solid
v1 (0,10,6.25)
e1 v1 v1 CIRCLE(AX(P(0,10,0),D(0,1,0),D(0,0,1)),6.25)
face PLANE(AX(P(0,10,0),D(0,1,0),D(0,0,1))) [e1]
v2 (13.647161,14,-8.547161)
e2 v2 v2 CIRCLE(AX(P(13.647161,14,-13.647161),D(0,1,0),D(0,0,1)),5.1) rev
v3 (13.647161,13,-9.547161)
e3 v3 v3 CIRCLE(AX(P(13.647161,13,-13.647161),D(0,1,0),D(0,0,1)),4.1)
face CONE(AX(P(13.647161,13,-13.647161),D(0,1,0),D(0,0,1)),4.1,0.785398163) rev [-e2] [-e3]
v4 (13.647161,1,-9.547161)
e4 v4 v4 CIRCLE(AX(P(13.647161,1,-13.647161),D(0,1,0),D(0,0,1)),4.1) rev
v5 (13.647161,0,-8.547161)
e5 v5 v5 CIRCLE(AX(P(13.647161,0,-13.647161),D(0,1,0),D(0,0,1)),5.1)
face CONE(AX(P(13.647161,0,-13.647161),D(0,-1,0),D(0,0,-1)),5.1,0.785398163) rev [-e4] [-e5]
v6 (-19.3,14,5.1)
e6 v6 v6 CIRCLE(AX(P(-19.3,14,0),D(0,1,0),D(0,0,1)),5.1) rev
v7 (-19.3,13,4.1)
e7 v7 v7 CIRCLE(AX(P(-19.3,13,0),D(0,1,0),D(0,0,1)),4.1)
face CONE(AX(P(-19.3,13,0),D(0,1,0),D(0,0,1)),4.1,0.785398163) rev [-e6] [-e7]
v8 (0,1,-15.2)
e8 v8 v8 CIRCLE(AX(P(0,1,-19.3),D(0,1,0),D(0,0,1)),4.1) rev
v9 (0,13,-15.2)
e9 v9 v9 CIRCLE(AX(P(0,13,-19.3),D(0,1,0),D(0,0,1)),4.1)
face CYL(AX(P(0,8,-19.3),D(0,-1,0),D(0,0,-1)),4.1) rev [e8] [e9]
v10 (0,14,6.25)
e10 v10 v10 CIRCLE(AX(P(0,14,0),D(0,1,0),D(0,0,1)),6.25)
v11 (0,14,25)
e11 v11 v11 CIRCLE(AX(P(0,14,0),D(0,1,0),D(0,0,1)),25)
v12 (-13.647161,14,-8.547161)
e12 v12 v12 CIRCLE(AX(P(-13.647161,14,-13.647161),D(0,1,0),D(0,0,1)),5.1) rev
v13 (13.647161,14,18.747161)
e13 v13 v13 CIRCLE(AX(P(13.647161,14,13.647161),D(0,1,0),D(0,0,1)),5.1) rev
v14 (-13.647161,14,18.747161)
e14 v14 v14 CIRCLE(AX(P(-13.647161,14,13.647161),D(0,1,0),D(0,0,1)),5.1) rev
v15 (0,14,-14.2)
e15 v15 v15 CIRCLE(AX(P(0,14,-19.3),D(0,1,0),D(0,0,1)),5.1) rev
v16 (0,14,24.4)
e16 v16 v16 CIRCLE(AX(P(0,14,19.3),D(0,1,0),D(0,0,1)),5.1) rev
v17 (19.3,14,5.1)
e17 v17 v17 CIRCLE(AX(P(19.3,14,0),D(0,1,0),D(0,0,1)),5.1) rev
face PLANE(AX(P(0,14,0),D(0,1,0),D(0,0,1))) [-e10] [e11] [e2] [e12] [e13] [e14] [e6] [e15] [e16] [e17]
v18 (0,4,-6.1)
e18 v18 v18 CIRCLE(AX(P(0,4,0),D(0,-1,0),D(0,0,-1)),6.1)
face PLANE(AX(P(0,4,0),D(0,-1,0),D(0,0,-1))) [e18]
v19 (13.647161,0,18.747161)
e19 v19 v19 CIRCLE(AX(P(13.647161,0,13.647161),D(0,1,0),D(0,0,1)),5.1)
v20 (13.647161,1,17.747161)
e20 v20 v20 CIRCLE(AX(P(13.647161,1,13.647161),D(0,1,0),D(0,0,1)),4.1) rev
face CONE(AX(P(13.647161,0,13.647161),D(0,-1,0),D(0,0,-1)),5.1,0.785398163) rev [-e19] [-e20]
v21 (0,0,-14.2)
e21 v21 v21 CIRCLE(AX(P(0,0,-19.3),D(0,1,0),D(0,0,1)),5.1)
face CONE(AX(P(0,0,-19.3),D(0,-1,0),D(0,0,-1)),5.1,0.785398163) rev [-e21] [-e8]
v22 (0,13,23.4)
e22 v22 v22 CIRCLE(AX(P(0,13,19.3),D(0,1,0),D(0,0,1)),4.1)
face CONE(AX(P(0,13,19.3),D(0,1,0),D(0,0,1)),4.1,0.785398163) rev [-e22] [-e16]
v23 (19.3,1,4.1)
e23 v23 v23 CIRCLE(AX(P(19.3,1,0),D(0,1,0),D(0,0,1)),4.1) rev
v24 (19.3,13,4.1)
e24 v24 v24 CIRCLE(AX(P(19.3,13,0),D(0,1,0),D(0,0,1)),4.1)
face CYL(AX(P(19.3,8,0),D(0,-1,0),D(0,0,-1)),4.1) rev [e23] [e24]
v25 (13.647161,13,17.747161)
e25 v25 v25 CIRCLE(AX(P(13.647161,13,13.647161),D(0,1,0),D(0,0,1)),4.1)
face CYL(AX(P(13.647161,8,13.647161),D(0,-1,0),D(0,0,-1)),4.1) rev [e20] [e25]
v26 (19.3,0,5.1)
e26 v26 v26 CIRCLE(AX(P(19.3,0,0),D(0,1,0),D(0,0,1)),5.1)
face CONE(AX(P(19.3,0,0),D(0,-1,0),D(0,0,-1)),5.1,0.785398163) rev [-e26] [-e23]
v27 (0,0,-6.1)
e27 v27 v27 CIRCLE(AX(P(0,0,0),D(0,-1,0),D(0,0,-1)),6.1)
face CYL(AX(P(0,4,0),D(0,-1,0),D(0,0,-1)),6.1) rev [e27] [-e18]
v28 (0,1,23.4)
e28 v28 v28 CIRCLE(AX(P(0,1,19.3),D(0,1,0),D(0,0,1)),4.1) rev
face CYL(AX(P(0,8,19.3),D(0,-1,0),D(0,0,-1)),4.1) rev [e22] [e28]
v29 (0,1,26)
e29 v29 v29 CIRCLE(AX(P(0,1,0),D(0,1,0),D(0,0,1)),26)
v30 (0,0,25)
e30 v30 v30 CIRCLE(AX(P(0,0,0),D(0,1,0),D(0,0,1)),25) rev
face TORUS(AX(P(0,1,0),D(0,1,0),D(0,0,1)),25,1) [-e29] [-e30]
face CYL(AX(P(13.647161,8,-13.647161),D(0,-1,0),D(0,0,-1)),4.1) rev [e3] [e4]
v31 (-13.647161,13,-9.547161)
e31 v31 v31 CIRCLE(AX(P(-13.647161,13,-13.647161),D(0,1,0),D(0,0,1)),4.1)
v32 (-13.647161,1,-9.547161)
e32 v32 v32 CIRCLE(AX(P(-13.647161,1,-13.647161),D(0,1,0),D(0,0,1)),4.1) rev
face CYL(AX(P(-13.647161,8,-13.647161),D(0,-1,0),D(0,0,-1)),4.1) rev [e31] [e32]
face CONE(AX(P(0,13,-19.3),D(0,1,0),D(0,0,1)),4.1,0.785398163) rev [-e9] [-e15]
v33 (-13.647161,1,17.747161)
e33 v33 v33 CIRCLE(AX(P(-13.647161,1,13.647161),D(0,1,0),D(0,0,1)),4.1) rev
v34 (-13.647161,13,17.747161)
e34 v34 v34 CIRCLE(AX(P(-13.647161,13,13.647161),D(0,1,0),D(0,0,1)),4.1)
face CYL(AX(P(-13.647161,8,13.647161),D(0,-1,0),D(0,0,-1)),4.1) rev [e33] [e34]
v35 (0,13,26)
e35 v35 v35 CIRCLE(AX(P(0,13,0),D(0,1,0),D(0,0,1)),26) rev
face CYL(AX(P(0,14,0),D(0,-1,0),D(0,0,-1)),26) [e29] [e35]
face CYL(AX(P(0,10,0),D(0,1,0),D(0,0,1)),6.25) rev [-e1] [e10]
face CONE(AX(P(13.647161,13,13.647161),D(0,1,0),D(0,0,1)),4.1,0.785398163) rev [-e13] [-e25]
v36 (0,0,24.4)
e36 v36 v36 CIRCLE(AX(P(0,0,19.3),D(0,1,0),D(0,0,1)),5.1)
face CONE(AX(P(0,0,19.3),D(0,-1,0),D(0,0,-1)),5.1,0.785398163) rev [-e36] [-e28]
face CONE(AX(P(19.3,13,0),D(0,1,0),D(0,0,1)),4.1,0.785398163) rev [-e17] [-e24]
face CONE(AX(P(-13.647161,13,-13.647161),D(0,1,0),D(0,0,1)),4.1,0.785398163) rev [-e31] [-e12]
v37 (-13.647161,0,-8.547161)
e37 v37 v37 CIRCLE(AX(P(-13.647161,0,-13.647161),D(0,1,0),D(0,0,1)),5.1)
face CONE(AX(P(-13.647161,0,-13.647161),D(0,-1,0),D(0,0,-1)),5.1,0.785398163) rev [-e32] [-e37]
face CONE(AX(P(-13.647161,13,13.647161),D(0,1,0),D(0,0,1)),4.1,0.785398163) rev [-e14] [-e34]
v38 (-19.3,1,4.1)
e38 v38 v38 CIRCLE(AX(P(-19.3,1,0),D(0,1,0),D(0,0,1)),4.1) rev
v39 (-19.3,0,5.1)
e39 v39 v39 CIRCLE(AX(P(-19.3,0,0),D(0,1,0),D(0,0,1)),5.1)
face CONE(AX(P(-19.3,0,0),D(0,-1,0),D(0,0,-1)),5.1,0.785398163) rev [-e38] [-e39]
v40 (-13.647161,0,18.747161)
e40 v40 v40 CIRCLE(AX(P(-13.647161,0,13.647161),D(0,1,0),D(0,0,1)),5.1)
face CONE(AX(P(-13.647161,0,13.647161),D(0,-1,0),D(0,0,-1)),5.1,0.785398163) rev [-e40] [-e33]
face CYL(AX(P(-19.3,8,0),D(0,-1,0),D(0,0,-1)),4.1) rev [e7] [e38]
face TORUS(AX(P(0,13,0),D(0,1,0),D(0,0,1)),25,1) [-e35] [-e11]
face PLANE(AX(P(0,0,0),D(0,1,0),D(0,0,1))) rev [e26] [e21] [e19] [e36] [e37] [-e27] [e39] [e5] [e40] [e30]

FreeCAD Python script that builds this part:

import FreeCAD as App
import Part
import Sketcher
from FreeCAD import Vector
Q = App.Units.Quantity


def edges_at(feature, points):
    """Names of the edges that pass closest to the given points."""
    edges = feature.Shape.Edges
    near = lambda p: min(range(len(edges)), key=lambda i: edges[i].distToShape(Part.Vertex(*p))[0])
    return sorted({f"Edge{near(p) + 1}" for p in points})

doc = App.newDocument("Part")
body = doc.addObject("PartDesign::Body", "Body")

# Sketch on XZ plane
sketch1 = doc.addObject("Sketcher::SketchObject", "Sketch")
body.addObject(sketch1)
sketch1.AttachmentSupport = (doc.XZ_Plane, [""])
sketch1.MapMode = "FlatFace"
sketch1.addGeometry(Part.Circle(Vector(0, 0, 0), Vector(0, 0, 1), 26), False)
sketch1.addConstraint([
    Sketcher.Constraint("Coincident", 0, 3, -1, 1),
    Sketcher.Constraint("Diameter", 0, Q("52 mm")),
])
pad1 = doc.addObject("PartDesign::Pad", "Pad")
body.addObject(pad1)
pad1.Profile = sketch1
pad1.Length = 14
pad1.Reversed = True

# Sketch on XZ plane
sketch2 = doc.addObject("Sketcher::SketchObject", "Sketch001")
body.addObject(sketch2)
sketch2.AttachmentSupport = (doc.XZ_Plane, [""])
sketch2.MapMode = "FlatFace"
sketch2.addGeometry(Part.Circle(Vector(0, 0, 0), Vector(0, 0, 1), 6), False)
sketch2.addConstraint([
    Sketcher.Constraint("Coincident", 0, 3, -1, 1),
    Sketcher.Constraint("Diameter", 0, Q("12.2 mm")),
])
pocket1 = doc.addObject("PartDesign::Pocket", "Pocket")
body.addObject(pocket1)
pocket1.Profile = sketch2
pocket1.Length = 4

# Sketch on XZ plane
sketch3 = doc.addObject("Sketcher::SketchObject", "Sketch002")
body.addObject(sketch3)
sketch3.AttachmentSupport = (doc.XZ_Plane, [""])
sketch3.MapMode = "FlatFace"
sketch3.AttachmentOffset = App.Placement(Vector(0, 0, -14), App.Rotation())
sketch3.addGeometry(Part.Circle(Vector(0, 0, 0), Vector(0, 0, 1), 6), False)
sketch3.addConstraint([
    Sketcher.Constraint("Coincident", 0, 3, -1, 1),
    Sketcher.Constraint("Diameter", 0, Q("12.5 mm")),
])
pocket2 = doc.addObject("PartDesign::Pocket", "Pocket001")
body.addObject(pocket2)
pocket2.Profile = sketch3
pocket2.Length = 4
pocket2.Reversed = True

# Sketch on XZ plane
sketch4 = doc.addObject("Sketcher::SketchObject", "Sketch003")
body.addObject(sketch4)
sketch4.AttachmentSupport = (doc.XZ_Plane, [""])
sketch4.MapMode = "FlatFace"
sketch4.addGeometry([
    Part.Circle(Vector(-13.6, -13.6, 0), Vector(0, 0, 1), 4.1),  # 0
    Part.Circle(Vector(0, -19.3, 0), Vector(0, 0, 1), 4.1),  # 1
    Part.Circle(Vector(13.6, -13.6, 0), Vector(0, 0, 1), 4.1),  # 2
    Part.Circle(Vector(19.3, 0, 0), Vector(0, 0, 1), 4.1),  # 3
    Part.Circle(Vector(13.6, 13.6, 0), Vector(0, 0, 1), 4.1),  # 4
    Part.Circle(Vector(0, 19.3, 0), Vector(0, 0, 1), 4.1),  # 5
    Part.Circle(Vector(-13.6, 13.6, 0), Vector(0, 0, 1), 4.1),  # 6
    Part.Circle(Vector(-19.3, 0, 0), Vector(0, 0, 1), 4.1),  # 7
], False)
sketch4.addConstraint([
    Sketcher.Constraint("Equal", 0, 1),
    Sketcher.Constraint("Equal", 1, 2),
    Sketcher.Constraint("Equal", 2, 3),
    Sketcher.Constraint("Equal", 3, 4),
    Sketcher.Constraint("Equal", 4, 5),
    Sketcher.Constraint("Equal", 5, 6),
    Sketcher.Constraint("Equal", 6, 7),
    Sketcher.Constraint("Symmetric", 0, 3, 4, 3, -1, 1),
    Sketcher.Constraint("Symmetric", 1, 3, 5, 3, -1, 1),
    Sketcher.Constraint("Symmetric", 2, 3, 6, 3, -1, 1),
    Sketcher.Constraint("Symmetric", 3, 3, 7, 3, -1, 1),
    Sketcher.Constraint("Symmetric", 0, 3, 2, 3, -2),
    Sketcher.Constraint("PointOnObject", 1, 3, -2),
    Sketcher.Constraint("PointOnObject", 3, 3, -1),
    Sketcher.Constraint("Diameter", 0, Q("8.2 mm")),
    Sketcher.Constraint("DistanceY", 1, 3, -1, 1, Q("19.3 mm")),
    Sketcher.Constraint("DistanceX", -1, 1, 3, 3, Q("19.3 mm")),
    Sketcher.Constraint("DistanceX", 0, 3, -1, 1, Q("13.647161 mm")),
    Sketcher.Constraint("DistanceY", 0, 3, -1, 1, Q("13.647161 mm")),
])
pocket3 = doc.addObject("PartDesign::Pocket", "Pocket002")
body.addObject(pocket3)
pocket3.Profile = sketch4
pocket3.Length = 8

# Sketch on XZ plane
sketch5 = doc.addObject("Sketcher::SketchObject", "Sketch004")
body.addObject(sketch5)
sketch5.AttachmentSupport = (doc.XZ_Plane, [""])
sketch5.MapMode = "FlatFace"
sketch5.AttachmentOffset = App.Placement(Vector(0, 0, -14), App.Rotation())
sketch5.addGeometry([
    Part.Circle(Vector(-13.6, -13.6, 0), Vector(0, 0, 1), 4.1),  # 0
    Part.Circle(Vector(0, -19.3, 0), Vector(0, 0, 1), 4.1),  # 1
    Part.Circle(Vector(13.6, -13.6, 0), Vector(0, 0, 1), 4.1),  # 2
    Part.Circle(Vector(19.3, 0, 0), Vector(0, 0, 1), 4.1),  # 3
    Part.Circle(Vector(13.6, 13.6, 0), Vector(0, 0, 1), 4.1),  # 4
    Part.Circle(Vector(0, 19.3, 0), Vector(0, 0, 1), 4.1),  # 5
    Part.Circle(Vector(-13.6, 13.6, 0), Vector(0, 0, 1), 4.1),  # 6
    Part.Circle(Vector(-19.3, 0, 0), Vector(0, 0, 1), 4.1),  # 7
], False)
sketch5.addConstraint([
    Sketcher.Constraint("Equal", 0, 1),
    Sketcher.Constraint("Equal", 1, 2),
    Sketcher.Constraint("Equal", 2, 3),
    Sketcher.Constraint("Equal", 3, 4),
    Sketcher.Constraint("Equal", 4, 5),
    Sketcher.Constraint("Equal", 5, 6),
    Sketcher.Constraint("Equal", 6, 7),
    Sketcher.Constraint("Symmetric", 0, 3, 4, 3, -1, 1),
    Sketcher.Constraint("Symmetric", 1, 3, 5, 3, -1, 1),
    Sketcher.Constraint("Symmetric", 2, 3, 6, 3, -1, 1),
    Sketcher.Constraint("Symmetric", 3, 3, 7, 3, -1, 1),
    Sketcher.Constraint("Symmetric", 0, 3, 2, 3, -2),
    Sketcher.Constraint("PointOnObject", 1, 3, -2),
    Sketcher.Constraint("PointOnObject", 3, 3, -1),
    Sketcher.Constraint("Diameter", 0, Q("8.2 mm")),
    Sketcher.Constraint("DistanceY", 1, 3, -1, 1, Q("19.3 mm")),
    Sketcher.Constraint("DistanceX", -1, 1, 3, 3, Q("19.3 mm")),
    Sketcher.Constraint("DistanceX", 0, 3, -1, 1, Q("13.647161 mm")),
    Sketcher.Constraint("DistanceY", 0, 3, -1, 1, Q("13.647161 mm")),
])
pocket4 = doc.addObject("PartDesign::Pocket", "Pocket003")
body.addObject(pocket4)
pocket4.Profile = sketch5
pocket4.Type = "ThroughAll"
pocket4.Reversed = True
doc.recompute()

fillet = doc.addObject("PartDesign::Fillet", "Fillet")
body.addObject(fillet)
fillet.Base = (pocket4, edges_at(pocket4, [(-26, 0, 0), (-26, 14, 0)]))
fillet.Radius = 1
doc.recompute()

chamfer = doc.addObject("PartDesign::Chamfer", "Chamfer")
body.addObject(chamfer)
chamfer.Base = (fillet, edges_at(fillet, [
    (-17.747, 0, 13.647),
    (-23.4, 0, 0),
    (-17.747, 0, -13.647),
    (-4.1, 0, -19.3),
    (9.547, 0, -13.647),
    (15.2, 0, 0),
    (9.547, 0, 13.647),
    (-4.1, 0, 19.3),
    (-17.747, 14, 13.647),
    (-23.4, 14, 0),
    (-17.747, 14, -13.647),
    (-4.1, 14, -19.3),
    (-4.1, 14, 19.3),
    (9.547, 14, 13.647),
    (15.2, 14, 0),
    (9.547, 14, -13.647),
]))
chamfer.Size = 1

doc.recompute()
